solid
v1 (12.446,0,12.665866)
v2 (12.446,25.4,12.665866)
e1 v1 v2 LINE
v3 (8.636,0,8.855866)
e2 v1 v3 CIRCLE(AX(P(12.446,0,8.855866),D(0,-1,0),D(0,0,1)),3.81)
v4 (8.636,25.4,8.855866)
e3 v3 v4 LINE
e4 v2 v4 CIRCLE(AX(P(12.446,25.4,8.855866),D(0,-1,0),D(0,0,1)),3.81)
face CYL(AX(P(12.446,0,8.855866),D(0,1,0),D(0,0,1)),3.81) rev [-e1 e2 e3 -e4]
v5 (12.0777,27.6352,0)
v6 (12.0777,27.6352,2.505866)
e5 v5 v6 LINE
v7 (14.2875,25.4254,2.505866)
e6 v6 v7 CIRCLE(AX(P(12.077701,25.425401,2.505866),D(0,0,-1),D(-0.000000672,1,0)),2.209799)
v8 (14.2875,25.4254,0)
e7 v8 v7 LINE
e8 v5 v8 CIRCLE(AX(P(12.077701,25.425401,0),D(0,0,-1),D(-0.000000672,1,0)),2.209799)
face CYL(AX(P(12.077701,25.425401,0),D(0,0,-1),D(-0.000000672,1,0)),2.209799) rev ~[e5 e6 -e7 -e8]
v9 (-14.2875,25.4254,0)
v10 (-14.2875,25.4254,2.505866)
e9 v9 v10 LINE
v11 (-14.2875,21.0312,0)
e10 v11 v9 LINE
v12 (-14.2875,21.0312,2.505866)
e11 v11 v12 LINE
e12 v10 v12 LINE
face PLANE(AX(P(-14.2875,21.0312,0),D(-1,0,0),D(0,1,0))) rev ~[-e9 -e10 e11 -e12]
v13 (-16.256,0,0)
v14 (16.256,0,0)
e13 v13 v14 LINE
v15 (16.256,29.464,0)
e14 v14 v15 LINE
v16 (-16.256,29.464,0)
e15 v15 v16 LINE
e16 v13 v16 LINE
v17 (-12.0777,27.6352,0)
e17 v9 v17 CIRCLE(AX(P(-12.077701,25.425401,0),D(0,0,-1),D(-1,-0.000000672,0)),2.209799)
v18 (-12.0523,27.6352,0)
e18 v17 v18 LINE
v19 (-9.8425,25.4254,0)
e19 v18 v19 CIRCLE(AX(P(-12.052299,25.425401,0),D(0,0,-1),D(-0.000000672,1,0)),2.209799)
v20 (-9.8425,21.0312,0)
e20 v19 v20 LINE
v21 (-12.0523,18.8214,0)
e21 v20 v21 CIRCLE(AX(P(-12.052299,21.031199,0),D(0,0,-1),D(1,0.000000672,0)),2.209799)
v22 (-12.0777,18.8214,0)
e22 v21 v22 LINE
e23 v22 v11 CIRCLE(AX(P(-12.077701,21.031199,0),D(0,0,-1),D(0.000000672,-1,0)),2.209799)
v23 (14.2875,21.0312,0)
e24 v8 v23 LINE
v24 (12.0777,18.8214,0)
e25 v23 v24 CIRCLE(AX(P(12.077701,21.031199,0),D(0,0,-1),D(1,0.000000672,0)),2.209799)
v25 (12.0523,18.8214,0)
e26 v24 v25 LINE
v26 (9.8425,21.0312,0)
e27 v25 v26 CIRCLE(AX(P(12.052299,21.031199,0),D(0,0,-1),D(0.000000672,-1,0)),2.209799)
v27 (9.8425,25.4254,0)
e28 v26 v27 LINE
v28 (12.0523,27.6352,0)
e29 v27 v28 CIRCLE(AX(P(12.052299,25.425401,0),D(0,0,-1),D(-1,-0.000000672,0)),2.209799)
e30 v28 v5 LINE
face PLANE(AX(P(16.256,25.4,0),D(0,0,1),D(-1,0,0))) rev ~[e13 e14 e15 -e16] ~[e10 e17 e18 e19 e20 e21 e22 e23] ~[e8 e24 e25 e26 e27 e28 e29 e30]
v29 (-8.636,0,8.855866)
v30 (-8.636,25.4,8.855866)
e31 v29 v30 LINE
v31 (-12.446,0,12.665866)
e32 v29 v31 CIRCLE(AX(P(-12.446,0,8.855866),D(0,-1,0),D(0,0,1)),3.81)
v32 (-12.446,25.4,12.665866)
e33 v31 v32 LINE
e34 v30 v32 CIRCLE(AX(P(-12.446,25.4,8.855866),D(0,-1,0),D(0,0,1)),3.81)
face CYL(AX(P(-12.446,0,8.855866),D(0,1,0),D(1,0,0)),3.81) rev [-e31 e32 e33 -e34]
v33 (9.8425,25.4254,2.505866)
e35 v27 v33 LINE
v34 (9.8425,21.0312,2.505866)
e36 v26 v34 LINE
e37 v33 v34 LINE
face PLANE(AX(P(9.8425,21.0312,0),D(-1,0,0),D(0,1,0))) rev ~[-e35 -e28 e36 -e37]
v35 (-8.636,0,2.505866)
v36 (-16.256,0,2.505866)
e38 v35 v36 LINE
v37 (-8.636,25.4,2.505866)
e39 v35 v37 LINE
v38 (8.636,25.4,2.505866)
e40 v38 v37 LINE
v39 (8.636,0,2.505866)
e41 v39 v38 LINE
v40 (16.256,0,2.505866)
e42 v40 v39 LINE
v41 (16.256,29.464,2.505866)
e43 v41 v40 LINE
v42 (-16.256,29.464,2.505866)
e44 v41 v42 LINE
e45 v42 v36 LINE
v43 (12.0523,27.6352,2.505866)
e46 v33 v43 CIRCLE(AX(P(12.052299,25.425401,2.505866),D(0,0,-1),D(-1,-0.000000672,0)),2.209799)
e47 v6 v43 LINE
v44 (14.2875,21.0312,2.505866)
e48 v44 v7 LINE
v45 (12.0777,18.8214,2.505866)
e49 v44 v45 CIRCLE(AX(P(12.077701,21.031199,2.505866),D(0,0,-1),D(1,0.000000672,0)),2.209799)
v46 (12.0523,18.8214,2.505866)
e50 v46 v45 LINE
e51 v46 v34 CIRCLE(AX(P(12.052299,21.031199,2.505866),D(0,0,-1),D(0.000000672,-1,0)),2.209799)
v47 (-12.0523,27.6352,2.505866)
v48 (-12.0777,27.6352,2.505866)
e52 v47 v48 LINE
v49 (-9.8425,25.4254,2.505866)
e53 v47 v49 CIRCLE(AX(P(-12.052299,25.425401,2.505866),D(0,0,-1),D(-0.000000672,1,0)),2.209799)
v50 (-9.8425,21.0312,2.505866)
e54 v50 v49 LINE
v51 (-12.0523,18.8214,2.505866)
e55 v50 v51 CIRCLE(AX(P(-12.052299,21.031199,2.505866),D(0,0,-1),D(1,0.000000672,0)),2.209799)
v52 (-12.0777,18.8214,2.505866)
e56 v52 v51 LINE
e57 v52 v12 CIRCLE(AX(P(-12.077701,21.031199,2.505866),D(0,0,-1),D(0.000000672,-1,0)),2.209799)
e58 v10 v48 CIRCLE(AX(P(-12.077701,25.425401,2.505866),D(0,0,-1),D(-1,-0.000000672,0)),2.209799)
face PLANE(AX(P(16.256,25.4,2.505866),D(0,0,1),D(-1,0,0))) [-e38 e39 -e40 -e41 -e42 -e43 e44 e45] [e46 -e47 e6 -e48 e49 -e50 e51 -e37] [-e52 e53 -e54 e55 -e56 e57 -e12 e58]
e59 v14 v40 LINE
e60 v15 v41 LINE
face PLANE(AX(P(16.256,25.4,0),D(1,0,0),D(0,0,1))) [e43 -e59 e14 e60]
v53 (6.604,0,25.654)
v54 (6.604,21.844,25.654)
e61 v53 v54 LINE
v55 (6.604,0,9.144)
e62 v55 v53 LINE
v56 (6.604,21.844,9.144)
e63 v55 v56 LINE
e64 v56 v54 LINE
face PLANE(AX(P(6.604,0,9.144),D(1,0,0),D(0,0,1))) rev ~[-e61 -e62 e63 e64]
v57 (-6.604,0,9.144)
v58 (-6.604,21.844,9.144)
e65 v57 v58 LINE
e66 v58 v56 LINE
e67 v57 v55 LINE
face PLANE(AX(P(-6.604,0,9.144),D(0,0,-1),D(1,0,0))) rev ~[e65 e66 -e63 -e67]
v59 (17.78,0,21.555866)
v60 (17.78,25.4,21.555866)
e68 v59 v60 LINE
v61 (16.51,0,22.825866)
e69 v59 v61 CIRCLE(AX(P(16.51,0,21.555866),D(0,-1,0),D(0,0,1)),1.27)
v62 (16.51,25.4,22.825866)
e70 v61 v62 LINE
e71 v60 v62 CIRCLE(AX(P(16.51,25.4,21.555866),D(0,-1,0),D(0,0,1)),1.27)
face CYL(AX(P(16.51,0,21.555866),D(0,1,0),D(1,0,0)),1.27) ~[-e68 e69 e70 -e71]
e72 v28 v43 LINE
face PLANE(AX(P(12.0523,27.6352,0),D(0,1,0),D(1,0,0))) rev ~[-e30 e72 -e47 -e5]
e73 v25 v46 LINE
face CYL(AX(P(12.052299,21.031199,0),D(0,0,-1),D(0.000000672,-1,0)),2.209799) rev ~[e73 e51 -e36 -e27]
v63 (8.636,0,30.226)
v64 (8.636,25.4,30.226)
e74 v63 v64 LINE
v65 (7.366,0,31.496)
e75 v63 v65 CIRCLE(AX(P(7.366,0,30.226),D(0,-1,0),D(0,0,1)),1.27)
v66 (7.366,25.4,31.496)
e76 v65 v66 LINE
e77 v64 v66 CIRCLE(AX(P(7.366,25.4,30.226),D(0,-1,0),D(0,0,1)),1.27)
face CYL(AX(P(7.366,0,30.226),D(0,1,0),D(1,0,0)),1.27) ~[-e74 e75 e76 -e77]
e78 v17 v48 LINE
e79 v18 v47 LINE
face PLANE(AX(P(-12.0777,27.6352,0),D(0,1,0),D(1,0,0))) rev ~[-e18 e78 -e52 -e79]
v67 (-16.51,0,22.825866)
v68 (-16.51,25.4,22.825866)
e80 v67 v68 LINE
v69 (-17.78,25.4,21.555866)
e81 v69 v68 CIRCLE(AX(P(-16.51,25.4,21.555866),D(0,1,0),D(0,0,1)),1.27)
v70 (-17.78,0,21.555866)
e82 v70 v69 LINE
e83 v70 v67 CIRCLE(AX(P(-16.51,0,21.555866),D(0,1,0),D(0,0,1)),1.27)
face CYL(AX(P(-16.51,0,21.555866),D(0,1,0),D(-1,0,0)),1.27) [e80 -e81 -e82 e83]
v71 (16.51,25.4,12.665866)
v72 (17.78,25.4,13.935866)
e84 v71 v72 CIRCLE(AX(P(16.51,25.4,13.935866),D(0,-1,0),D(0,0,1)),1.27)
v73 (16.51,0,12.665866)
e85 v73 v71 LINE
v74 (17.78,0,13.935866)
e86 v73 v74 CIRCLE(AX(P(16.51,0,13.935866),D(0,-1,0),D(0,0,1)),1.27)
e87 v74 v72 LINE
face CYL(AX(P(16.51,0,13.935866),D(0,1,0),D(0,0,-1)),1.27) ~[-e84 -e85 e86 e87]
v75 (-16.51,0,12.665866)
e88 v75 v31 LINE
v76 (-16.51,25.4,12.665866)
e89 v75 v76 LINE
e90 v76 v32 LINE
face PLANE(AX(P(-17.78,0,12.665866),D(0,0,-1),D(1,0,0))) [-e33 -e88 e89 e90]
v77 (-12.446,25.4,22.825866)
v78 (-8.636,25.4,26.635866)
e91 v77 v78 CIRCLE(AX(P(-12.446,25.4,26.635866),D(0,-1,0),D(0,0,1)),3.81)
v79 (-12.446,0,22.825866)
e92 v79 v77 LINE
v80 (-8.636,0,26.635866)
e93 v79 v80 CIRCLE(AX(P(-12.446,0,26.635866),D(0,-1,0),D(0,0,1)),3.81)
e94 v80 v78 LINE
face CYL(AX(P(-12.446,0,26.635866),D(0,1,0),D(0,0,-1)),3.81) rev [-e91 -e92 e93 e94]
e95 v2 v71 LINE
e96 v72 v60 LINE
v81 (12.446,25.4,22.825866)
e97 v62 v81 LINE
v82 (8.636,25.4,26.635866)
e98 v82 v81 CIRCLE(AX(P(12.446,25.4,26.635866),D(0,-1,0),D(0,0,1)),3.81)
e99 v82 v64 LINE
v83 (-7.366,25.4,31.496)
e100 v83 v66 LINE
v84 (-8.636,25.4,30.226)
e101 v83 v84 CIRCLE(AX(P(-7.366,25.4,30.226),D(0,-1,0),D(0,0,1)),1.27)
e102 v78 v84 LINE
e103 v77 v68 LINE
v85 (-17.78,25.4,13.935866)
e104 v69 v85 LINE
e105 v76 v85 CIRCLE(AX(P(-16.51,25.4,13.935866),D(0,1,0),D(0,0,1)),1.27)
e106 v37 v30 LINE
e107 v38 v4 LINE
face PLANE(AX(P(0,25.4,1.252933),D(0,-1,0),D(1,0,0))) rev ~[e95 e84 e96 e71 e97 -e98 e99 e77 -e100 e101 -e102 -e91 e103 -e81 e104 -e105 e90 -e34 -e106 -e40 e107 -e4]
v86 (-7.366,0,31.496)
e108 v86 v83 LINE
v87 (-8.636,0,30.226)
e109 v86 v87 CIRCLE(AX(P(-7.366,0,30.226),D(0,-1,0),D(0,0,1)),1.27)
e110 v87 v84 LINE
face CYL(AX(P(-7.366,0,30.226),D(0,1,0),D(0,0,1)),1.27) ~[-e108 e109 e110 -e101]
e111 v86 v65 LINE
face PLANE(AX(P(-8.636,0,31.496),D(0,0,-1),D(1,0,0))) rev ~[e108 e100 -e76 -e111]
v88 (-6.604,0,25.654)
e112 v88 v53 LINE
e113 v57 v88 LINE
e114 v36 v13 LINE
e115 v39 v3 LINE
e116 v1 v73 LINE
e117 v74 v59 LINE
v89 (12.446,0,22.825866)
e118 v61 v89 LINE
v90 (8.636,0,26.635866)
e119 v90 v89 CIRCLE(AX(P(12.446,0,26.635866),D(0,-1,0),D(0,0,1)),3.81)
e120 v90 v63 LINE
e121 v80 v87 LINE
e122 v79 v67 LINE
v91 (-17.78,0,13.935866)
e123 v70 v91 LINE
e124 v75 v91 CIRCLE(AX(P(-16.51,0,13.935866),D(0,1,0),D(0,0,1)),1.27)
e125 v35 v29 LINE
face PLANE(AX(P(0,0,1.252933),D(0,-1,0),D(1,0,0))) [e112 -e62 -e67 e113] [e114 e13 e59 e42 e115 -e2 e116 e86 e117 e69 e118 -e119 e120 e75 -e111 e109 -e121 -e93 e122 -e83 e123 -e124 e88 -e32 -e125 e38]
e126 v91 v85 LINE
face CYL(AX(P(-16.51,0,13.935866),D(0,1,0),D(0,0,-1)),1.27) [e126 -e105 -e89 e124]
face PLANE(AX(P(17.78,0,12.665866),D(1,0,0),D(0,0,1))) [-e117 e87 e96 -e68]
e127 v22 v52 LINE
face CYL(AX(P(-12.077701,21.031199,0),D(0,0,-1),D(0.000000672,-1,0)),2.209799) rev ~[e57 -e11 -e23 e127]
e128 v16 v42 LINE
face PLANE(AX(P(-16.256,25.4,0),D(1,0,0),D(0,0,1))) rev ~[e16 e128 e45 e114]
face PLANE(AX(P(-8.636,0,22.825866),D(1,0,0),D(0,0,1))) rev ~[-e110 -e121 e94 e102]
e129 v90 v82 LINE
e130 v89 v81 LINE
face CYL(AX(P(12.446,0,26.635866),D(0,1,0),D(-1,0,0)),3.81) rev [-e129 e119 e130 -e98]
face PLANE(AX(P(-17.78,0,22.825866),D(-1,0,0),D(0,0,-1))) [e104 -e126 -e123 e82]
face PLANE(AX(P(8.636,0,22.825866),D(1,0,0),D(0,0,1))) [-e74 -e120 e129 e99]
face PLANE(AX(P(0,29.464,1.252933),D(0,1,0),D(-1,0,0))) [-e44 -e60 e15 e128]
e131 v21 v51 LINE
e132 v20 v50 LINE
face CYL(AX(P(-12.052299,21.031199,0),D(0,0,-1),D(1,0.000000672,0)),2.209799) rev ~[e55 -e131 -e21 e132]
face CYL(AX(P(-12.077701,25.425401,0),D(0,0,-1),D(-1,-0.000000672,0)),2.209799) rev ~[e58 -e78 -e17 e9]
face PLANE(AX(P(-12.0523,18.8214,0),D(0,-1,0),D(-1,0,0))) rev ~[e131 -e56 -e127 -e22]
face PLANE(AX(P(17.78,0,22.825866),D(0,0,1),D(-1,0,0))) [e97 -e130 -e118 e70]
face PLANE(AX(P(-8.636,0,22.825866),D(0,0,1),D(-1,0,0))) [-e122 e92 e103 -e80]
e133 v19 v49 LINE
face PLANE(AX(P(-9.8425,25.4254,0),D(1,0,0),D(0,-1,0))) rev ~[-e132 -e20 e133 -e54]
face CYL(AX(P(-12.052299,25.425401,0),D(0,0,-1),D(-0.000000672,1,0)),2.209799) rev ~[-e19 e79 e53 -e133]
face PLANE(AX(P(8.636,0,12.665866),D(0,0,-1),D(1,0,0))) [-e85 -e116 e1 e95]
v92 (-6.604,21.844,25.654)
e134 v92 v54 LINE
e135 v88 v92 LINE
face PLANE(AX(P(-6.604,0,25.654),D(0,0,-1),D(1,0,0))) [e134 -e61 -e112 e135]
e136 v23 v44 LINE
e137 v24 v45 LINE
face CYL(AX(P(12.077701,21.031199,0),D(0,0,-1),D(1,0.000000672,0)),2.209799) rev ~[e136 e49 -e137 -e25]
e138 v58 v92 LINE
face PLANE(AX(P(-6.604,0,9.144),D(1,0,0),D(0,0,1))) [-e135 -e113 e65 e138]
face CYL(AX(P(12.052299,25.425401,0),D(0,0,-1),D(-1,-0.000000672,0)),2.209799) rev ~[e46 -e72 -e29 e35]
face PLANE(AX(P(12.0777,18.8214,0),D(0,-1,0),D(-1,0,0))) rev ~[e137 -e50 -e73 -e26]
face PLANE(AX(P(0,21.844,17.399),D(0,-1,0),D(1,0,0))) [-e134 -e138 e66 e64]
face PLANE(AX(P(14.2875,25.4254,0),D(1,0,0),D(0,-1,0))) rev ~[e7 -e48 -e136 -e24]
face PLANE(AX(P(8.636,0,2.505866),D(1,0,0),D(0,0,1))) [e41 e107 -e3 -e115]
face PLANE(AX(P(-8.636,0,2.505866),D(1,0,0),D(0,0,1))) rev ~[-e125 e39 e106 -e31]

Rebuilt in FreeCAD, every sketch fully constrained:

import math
import FreeCAD as App
import Part
import Sketcher

V = App.Vector
Q = App.Units.Quantity


def edges_at(feature, points):
    """Names of the edges that pass closest to the given points."""
    edges = feature.Shape.Edges
    near = lambda p: min(range(len(edges)), key=lambda i: edges[i].distToShape(Part.Vertex(*p))[0])
    return sorted({f"Edge{near(p) + 1}" for p in points})


def add_polygon(sketch, points):
    """Adds a closed chain of lines whose ends are joined by coincident constraints."""
    first, n = sketch.GeometryCount, len(points)
    for a, b in zip(points, points[1:] + points[:1]):
        sketch.addGeometry(Part.LineSegment(App.Vector(*a, 0), App.Vector(*b, 0)), False)
    for i in range(n):
        sketch.addConstraint(Sketcher.Constraint("Coincident", first + i, 2, first + (i + 1) % n, 1))

doc = App.newDocument("Part")
body = doc.addObject("PartDesign::Body", "Body")

sketch1 = doc.addObject("Sketcher::SketchObject", "Sketch")
body.addObject(sketch1)
sketch1.AttachmentSupport = (doc.XZ_Plane, [""])
sketch1.MapMode = "FlatFace"
add_polygon(sketch1, [(-16.3, 2.5), (-16.3, 0), (16.3, 0), (16.3, 2.5), (8.6, 2.5), (8.6, 12.7), (17.8, 12.7), (17.8, 22.8), (8.6, 22.8), (8.6, 31.5), (-8.6, 31.5), (-8.6, 22.8), (-17.8, 22.8), (-17.8, 12.7), (-8.6, 12.7), (-8.6, 2.5)])
sketch1.addConstraint([
    Sketcher.Constraint("Vertical", 0),
    Sketcher.Constraint("Horizontal", 1),
    Sketcher.Constraint("Vertical", 2),
    Sketcher.Constraint("Horizontal", 3),
    Sketcher.Constraint("Vertical", 4),
    Sketcher.Constraint("Horizontal", 5),
    Sketcher.Constraint("Vertical", 6),
    Sketcher.Constraint("Horizontal", 7),
    Sketcher.Constraint("Vertical", 8),
    Sketcher.Constraint("Horizontal", 9),
    Sketcher.Constraint("Vertical", 10),
    Sketcher.Constraint("Horizontal", 11),
    Sketcher.Constraint("Vertical", 12),
    Sketcher.Constraint("Horizontal", 13),
    Sketcher.Constraint("Vertical", 14),
    Sketcher.Constraint("Horizontal", 15),
    Sketcher.Constraint("Symmetric", 0, 2, 1, 2, -1, 1),
    Sketcher.Constraint("Symmetric", 7, 2, 10, 2, -2),
    Sketcher.Constraint("Symmetric", 5, 2, 12, 2, -2),
    Sketcher.Constraint("Symmetric", 3, 2, 14, 2, -2),
    Sketcher.Constraint("Vertical", 4, 2, 7, 2),
    Sketcher.Constraint("Equal", 4, 6),
    Sketcher.Constraint("DistanceX", 3, 2, 3, 1, Q("0.3 in")),
    Sketcher.Constraint("DistanceY", 4, 1, 4, 2, Q("0.4 in")),
    Sketcher.Constraint("DistanceX", 1, 1, 1, 2, Q("1.28 in")),
    Sketcher.Constraint("DistanceX", 5, 1, 5, 2, Q("0.36 in")),
    Sketcher.Constraint("DistanceY", -1, 1, 8, 2, Q("1.24 in")),
    Sketcher.Constraint("DistanceY", 0, 2, 0, 1, Q("2.505866 mm")),
])
pad1 = doc.addObject("PartDesign::Pad", "Pad")
body.addObject(pad1)
pad1.Profile = sketch1
pad1.Length = Q("1 in")
pad1.Reversed = True

sketch2 = doc.addObject("Sketcher::SketchObject", "Sketch001")
body.addObject(sketch2)
sketch2.AttachmentSupport = (doc.XZ_Plane, [""])
sketch2.MapMode = "FlatFace"
sketch2.AttachmentOffset = App.Placement(V(0, 0, -1 * 25.4), App.Rotation())
add_polygon(sketch2, [(16.3, 2.5), (16.3, 0), (-16.3, 0), (-16.3, 2.5)])
sketch2.addConstraint([
    Sketcher.Constraint("Vertical", 0),
    Sketcher.Constraint("Horizontal", 1),
    Sketcher.Constraint("Vertical", 2),
    Sketcher.Constraint("Horizontal", 3),
    Sketcher.Constraint("Symmetric", 0, 2, 1, 2, -1, 1),
    Sketcher.Constraint("DistanceX", 1, 2, 1, 1, Q("1.28 in")),
    Sketcher.Constraint("DistanceY", 0, 2, 0, 1, Q("2.505866 mm")),
])
pad2 = doc.addObject("PartDesign::Pad", "Pad001")
body.addObject(pad2)
pad2.Profile = sketch2
pad2.Length = Q("0.16 in")
pad2.Reversed = True
doc.recompute()

fillet = doc.addObject("PartDesign::Fillet", "Fillet")
body.addObject(fillet)
fillet.Base = (pad2, edges_at(pad2, [
    (-8.636, 12.7, 22.826),
    (-8.636, 12.7, 12.666),
    (8.636, 12.7, 12.666),
    (8.636, 12.7, 22.826),
]))
fillet.Radius = Q("0.15 in")
doc.recompute()

fillet2 = doc.addObject("PartDesign::Fillet", "Fillet001")
body.addObject(fillet2)
fillet2.Base = (fillet, edges_at(fillet, [
    (-8.636, 12.7, 31.496),
    (8.636, 12.7, 31.496),
    (17.78, 12.7, 22.826),
    (17.78, 12.7, 12.666),
    (-17.78, 12.7, 12.666),
    (-17.78, 12.7, 22.826),
]))
fillet2.Radius = Q("0.05 in")

sketch3 = doc.addObject("Sketcher::SketchObject", "Sketch002")
body.addObject(sketch3)
sketch3.AttachmentSupport = (doc.XZ_Plane, [""])
sketch3.MapMode = "FlatFace"
add_polygon(sketch3, [(-7, 26), (-7, 9), (7, 9), (7, 26)])
sketch3.addConstraint([
    Sketcher.Constraint("Vertical", 0),
    Sketcher.Constraint("Horizontal", 1),
    Sketcher.Constraint("Vertical", 2),
    Sketcher.Constraint("Horizontal", 3),
    Sketcher.Constraint("DistanceX", 1, 1, 1, 2, Q("0.52 in")),
    Sketcher.Constraint("DistanceY", 0, 2, 0, 1, Q("0.65 in")),
    Sketcher.Constraint("DistanceX", 0, 2, -1, 1, Q("0.26 in")),
    Sketcher.Constraint("DistanceY", -1, 1, 0, 2, Q("0.36 in")),
])
pocket1 = doc.addObject("PartDesign::Pocket", "Pocket")
body.addObject(pocket1)
pocket1.Profile = sketch3
pocket1.Length = Q("0.86 in")

sketch4 = doc.addObject("Sketcher::SketchObject", "Sketch003")
body.addObject(sketch4)
sketch4.AttachmentSupport = (doc.XY_Plane, [""])
sketch4.MapMode = "FlatFace"
sketch4.addGeometry([
    Part.ArcOfCircle(Part.Circle(V(-12.078, 25.425, 0), V(0, 0, 1), 2.21), math.radians(90), math.radians(180)),
    Part.LineSegment(V(-12.078, 27.635, 0), V(-12.052, 27.635, 0)),
    Part.ArcOfCircle(Part.Circle(V(-12.052, 25.425, 0), V(0, 0, 1), 2.21), math.radians(0), math.radians(90)),
    Part.LineSegment(V(-9.842, 25.425, 0), V(-9.842, 21.031, 0)),
    Part.ArcOfCircle(Part.Circle(V(-12.052, 21.031, 0), V(0, 0, 1), 2.21), math.radians(-90), math.radians(0)),
    Part.LineSegment(V(-12.052, 18.821, 0), V(-12.078, 18.821, 0)),
    Part.ArcOfCircle(Part.Circle(V(-12.078, 21.031, 0), V(0, 0, 1), 2.21), math.radians(180), math.radians(270)),
    Part.LineSegment(V(-14.287, 21.031, 0), V(-14.287, 25.425, 0)),
    Part.LineSegment(V(12.078, 18.821, 0), V(12.052, 18.821, 0)),
    Part.ArcOfCircle(Part.Circle(V(12.052, 21.031, 0), V(0, 0, 1), 2.21), math.radians(180), math.radians(270)),
    Part.LineSegment(V(9.842, 21.031, 0), V(9.842, 25.425, 0)),
    Part.ArcOfCircle(Part.Circle(V(12.052, 25.425, 0), V(0, 0, 1), 2.21), math.radians(90), math.radians(180)),
    Part.LineSegment(V(12.052, 27.635, 0), V(12.078, 27.635, 0)),
    Part.ArcOfCircle(Part.Circle(V(12.078, 25.425, 0), V(0, 0, 1), 2.21), math.radians(0), math.radians(90)),
    Part.LineSegment(V(14.287, 25.425, 0), V(14.287, 21.031, 0)),
    Part.ArcOfCircle(Part.Circle(V(12.078, 21.031, 0), V(0, 0, 1), 2.21), math.radians(-90), math.radians(0)),
], False)
sketch4.addConstraint([
    Sketcher.Constraint("Tangent", 0, 1, 1, 1),
    Sketcher.Constraint("Tangent", 1, 2, 2, 2),
    Sketcher.Constraint("Tangent", 2, 1, 3, 1),
    Sketcher.Constraint("Tangent", 3, 2, 4, 2),
    Sketcher.Constraint("Tangent", 4, 1, 5, 1),
    Sketcher.Constraint("Tangent", 5, 2, 6, 2),
    Sketcher.Constraint("Tangent", 6, 1, 7, 1),
    Sketcher.Constraint("Tangent", 7, 2, 0, 2),
    Sketcher.Constraint("Tangent", 8, 2, 9, 2),
    Sketcher.Constraint("Tangent", 9, 1, 10, 1),
    Sketcher.Constraint("Tangent", 10, 2, 11, 2),
    Sketcher.Constraint("Tangent", 11, 1, 12, 1),
    Sketcher.Constraint("Tangent", 12, 2, 13, 2),
    Sketcher.Constraint("Tangent", 13, 1, 14, 1),
    Sketcher.Constraint("Tangent", 14, 2, 15, 2),
    Sketcher.Constraint("Tangent", 15, 1, 8, 1),
    Sketcher.Constraint("Horizontal", 1),
    Sketcher.Constraint("Vertical", 3),
    Sketcher.Constraint("Horizontal", 5),
    Sketcher.Constraint("Vertical", 7),
    Sketcher.Constraint("Horizontal", 8),
    Sketcher.Constraint("Vertical", 10),
    Sketcher.Constraint("Horizontal", 12),
    Sketcher.Constraint("Vertical", 14),
    Sketcher.Constraint("Equal", 0, 2),
    Sketcher.Constraint("Equal", 2, 4),
    Sketcher.Constraint("Equal", 4, 6),
    Sketcher.Constraint("Equal", 6, 9),
    Sketcher.Constraint("Equal", 9, 11),
    Sketcher.Constraint("Equal", 11, 13),
    Sketcher.Constraint("Equal", 13, 15),
    Sketcher.Constraint("Symmetric", 4, 3, 9, 3, -2),
    Sketcher.Constraint("Symmetric", 0, 3, 13, 3, -2),
    Sketcher.Constraint("Radius", 0, Q("0.0869999 in")),
    Sketcher.Constraint("DistanceX", 1, 1, 1, 2, Q("0.001 in")),
    Sketcher.Constraint("DistanceY", 3, 2, 3, 1, Q("0.173 in")),
    Sketcher.Constraint("DistanceX", 6, 3, 9, 3, Q("0.95 in")),
    Sketcher.Constraint("DistanceY", -1, 1, 0, 3, Q("1.0010001 in")),
])
pocket2 = doc.addObject("PartDesign::Pocket", "Pocket001")
body.addObject(pocket2)
pocket2.Profile = sketch4
pocket2.Length = Q("0.2 in")
pocket2.Reversed = True

doc.recompute()
